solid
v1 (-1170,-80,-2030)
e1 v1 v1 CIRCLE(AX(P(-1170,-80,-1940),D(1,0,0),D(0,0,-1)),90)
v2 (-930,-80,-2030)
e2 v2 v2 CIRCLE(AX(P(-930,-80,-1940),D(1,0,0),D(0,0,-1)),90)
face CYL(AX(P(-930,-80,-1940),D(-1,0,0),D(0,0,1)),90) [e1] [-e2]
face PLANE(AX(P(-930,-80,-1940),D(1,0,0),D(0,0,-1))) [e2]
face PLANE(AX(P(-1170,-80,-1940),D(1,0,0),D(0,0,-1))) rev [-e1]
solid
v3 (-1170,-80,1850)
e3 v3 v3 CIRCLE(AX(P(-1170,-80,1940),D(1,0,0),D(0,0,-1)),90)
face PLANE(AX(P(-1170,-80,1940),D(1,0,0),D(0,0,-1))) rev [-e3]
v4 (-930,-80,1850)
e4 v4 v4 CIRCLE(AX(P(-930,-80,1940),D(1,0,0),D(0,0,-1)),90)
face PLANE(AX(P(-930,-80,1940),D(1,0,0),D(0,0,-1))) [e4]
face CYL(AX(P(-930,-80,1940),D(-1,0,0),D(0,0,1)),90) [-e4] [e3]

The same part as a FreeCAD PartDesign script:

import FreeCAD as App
import Part
import Sketcher
Q = App.Units.Quantity

doc = App.newDocument("Part")
body = doc.addObject("PartDesign::Body", "Body")

sketch1 = body.newObject("Sketcher::SketchObject", "Sketch")
sketch1.AttachmentSupport = (doc.getObject("YZ_Plane"), [""])
sketch1.MapMode = "FlatFace"
sketch1.AttachmentOffset = App.Placement(App.Vector(0, 0, -1170), App.Rotation())
sketch1.addGeometry(Part.Circle(App.Vector(-80, -1940, 0), App.Vector(0, 0, 1), 90), False)
sketch1.addConstraint([
    Sketcher.Constraint("Diameter", 0, Q("180 mm")),
    Sketcher.Constraint("DistanceX", 0, 3, -1, 1, Q("80 mm")),
    Sketcher.Constraint("DistanceY", 0, 3, -1, 1, Q("1940 mm")),
])
pad1 = body.newObject("PartDesign::Pad", "Pad")
pad1.Profile = sketch1
pad1.Length = 240
body2 = doc.addObject("PartDesign::Body", "Body001")

sketch2 = body2.newObject("Sketcher::SketchObject", "Sketch001")
sketch2.AttachmentSupport = (doc.getObject("YZ_Plane001"), [""])
sketch2.MapMode = "FlatFace"
sketch2.AttachmentOffset = App.Placement(App.Vector(0, 0, -1170), App.Rotation())
sketch2.addGeometry(Part.Circle(App.Vector(-80, 1940, 0), App.Vector(0, 0, 1), 90), False)
sketch2.addConstraint([
    Sketcher.Constraint("Diameter", 0, Q("180 mm")),
    Sketcher.Constraint("DistanceX", 0, 3, -1, 1, Q("80 mm")),
    Sketcher.Constraint("DistanceY", -1, 1, 0, 3, Q("1940 mm")),
])
pad2 = body2.newObject("PartDesign::Pad", "Pad001")
pad2.Profile = sketch2
pad2.Length = 240

doc.recompute()
